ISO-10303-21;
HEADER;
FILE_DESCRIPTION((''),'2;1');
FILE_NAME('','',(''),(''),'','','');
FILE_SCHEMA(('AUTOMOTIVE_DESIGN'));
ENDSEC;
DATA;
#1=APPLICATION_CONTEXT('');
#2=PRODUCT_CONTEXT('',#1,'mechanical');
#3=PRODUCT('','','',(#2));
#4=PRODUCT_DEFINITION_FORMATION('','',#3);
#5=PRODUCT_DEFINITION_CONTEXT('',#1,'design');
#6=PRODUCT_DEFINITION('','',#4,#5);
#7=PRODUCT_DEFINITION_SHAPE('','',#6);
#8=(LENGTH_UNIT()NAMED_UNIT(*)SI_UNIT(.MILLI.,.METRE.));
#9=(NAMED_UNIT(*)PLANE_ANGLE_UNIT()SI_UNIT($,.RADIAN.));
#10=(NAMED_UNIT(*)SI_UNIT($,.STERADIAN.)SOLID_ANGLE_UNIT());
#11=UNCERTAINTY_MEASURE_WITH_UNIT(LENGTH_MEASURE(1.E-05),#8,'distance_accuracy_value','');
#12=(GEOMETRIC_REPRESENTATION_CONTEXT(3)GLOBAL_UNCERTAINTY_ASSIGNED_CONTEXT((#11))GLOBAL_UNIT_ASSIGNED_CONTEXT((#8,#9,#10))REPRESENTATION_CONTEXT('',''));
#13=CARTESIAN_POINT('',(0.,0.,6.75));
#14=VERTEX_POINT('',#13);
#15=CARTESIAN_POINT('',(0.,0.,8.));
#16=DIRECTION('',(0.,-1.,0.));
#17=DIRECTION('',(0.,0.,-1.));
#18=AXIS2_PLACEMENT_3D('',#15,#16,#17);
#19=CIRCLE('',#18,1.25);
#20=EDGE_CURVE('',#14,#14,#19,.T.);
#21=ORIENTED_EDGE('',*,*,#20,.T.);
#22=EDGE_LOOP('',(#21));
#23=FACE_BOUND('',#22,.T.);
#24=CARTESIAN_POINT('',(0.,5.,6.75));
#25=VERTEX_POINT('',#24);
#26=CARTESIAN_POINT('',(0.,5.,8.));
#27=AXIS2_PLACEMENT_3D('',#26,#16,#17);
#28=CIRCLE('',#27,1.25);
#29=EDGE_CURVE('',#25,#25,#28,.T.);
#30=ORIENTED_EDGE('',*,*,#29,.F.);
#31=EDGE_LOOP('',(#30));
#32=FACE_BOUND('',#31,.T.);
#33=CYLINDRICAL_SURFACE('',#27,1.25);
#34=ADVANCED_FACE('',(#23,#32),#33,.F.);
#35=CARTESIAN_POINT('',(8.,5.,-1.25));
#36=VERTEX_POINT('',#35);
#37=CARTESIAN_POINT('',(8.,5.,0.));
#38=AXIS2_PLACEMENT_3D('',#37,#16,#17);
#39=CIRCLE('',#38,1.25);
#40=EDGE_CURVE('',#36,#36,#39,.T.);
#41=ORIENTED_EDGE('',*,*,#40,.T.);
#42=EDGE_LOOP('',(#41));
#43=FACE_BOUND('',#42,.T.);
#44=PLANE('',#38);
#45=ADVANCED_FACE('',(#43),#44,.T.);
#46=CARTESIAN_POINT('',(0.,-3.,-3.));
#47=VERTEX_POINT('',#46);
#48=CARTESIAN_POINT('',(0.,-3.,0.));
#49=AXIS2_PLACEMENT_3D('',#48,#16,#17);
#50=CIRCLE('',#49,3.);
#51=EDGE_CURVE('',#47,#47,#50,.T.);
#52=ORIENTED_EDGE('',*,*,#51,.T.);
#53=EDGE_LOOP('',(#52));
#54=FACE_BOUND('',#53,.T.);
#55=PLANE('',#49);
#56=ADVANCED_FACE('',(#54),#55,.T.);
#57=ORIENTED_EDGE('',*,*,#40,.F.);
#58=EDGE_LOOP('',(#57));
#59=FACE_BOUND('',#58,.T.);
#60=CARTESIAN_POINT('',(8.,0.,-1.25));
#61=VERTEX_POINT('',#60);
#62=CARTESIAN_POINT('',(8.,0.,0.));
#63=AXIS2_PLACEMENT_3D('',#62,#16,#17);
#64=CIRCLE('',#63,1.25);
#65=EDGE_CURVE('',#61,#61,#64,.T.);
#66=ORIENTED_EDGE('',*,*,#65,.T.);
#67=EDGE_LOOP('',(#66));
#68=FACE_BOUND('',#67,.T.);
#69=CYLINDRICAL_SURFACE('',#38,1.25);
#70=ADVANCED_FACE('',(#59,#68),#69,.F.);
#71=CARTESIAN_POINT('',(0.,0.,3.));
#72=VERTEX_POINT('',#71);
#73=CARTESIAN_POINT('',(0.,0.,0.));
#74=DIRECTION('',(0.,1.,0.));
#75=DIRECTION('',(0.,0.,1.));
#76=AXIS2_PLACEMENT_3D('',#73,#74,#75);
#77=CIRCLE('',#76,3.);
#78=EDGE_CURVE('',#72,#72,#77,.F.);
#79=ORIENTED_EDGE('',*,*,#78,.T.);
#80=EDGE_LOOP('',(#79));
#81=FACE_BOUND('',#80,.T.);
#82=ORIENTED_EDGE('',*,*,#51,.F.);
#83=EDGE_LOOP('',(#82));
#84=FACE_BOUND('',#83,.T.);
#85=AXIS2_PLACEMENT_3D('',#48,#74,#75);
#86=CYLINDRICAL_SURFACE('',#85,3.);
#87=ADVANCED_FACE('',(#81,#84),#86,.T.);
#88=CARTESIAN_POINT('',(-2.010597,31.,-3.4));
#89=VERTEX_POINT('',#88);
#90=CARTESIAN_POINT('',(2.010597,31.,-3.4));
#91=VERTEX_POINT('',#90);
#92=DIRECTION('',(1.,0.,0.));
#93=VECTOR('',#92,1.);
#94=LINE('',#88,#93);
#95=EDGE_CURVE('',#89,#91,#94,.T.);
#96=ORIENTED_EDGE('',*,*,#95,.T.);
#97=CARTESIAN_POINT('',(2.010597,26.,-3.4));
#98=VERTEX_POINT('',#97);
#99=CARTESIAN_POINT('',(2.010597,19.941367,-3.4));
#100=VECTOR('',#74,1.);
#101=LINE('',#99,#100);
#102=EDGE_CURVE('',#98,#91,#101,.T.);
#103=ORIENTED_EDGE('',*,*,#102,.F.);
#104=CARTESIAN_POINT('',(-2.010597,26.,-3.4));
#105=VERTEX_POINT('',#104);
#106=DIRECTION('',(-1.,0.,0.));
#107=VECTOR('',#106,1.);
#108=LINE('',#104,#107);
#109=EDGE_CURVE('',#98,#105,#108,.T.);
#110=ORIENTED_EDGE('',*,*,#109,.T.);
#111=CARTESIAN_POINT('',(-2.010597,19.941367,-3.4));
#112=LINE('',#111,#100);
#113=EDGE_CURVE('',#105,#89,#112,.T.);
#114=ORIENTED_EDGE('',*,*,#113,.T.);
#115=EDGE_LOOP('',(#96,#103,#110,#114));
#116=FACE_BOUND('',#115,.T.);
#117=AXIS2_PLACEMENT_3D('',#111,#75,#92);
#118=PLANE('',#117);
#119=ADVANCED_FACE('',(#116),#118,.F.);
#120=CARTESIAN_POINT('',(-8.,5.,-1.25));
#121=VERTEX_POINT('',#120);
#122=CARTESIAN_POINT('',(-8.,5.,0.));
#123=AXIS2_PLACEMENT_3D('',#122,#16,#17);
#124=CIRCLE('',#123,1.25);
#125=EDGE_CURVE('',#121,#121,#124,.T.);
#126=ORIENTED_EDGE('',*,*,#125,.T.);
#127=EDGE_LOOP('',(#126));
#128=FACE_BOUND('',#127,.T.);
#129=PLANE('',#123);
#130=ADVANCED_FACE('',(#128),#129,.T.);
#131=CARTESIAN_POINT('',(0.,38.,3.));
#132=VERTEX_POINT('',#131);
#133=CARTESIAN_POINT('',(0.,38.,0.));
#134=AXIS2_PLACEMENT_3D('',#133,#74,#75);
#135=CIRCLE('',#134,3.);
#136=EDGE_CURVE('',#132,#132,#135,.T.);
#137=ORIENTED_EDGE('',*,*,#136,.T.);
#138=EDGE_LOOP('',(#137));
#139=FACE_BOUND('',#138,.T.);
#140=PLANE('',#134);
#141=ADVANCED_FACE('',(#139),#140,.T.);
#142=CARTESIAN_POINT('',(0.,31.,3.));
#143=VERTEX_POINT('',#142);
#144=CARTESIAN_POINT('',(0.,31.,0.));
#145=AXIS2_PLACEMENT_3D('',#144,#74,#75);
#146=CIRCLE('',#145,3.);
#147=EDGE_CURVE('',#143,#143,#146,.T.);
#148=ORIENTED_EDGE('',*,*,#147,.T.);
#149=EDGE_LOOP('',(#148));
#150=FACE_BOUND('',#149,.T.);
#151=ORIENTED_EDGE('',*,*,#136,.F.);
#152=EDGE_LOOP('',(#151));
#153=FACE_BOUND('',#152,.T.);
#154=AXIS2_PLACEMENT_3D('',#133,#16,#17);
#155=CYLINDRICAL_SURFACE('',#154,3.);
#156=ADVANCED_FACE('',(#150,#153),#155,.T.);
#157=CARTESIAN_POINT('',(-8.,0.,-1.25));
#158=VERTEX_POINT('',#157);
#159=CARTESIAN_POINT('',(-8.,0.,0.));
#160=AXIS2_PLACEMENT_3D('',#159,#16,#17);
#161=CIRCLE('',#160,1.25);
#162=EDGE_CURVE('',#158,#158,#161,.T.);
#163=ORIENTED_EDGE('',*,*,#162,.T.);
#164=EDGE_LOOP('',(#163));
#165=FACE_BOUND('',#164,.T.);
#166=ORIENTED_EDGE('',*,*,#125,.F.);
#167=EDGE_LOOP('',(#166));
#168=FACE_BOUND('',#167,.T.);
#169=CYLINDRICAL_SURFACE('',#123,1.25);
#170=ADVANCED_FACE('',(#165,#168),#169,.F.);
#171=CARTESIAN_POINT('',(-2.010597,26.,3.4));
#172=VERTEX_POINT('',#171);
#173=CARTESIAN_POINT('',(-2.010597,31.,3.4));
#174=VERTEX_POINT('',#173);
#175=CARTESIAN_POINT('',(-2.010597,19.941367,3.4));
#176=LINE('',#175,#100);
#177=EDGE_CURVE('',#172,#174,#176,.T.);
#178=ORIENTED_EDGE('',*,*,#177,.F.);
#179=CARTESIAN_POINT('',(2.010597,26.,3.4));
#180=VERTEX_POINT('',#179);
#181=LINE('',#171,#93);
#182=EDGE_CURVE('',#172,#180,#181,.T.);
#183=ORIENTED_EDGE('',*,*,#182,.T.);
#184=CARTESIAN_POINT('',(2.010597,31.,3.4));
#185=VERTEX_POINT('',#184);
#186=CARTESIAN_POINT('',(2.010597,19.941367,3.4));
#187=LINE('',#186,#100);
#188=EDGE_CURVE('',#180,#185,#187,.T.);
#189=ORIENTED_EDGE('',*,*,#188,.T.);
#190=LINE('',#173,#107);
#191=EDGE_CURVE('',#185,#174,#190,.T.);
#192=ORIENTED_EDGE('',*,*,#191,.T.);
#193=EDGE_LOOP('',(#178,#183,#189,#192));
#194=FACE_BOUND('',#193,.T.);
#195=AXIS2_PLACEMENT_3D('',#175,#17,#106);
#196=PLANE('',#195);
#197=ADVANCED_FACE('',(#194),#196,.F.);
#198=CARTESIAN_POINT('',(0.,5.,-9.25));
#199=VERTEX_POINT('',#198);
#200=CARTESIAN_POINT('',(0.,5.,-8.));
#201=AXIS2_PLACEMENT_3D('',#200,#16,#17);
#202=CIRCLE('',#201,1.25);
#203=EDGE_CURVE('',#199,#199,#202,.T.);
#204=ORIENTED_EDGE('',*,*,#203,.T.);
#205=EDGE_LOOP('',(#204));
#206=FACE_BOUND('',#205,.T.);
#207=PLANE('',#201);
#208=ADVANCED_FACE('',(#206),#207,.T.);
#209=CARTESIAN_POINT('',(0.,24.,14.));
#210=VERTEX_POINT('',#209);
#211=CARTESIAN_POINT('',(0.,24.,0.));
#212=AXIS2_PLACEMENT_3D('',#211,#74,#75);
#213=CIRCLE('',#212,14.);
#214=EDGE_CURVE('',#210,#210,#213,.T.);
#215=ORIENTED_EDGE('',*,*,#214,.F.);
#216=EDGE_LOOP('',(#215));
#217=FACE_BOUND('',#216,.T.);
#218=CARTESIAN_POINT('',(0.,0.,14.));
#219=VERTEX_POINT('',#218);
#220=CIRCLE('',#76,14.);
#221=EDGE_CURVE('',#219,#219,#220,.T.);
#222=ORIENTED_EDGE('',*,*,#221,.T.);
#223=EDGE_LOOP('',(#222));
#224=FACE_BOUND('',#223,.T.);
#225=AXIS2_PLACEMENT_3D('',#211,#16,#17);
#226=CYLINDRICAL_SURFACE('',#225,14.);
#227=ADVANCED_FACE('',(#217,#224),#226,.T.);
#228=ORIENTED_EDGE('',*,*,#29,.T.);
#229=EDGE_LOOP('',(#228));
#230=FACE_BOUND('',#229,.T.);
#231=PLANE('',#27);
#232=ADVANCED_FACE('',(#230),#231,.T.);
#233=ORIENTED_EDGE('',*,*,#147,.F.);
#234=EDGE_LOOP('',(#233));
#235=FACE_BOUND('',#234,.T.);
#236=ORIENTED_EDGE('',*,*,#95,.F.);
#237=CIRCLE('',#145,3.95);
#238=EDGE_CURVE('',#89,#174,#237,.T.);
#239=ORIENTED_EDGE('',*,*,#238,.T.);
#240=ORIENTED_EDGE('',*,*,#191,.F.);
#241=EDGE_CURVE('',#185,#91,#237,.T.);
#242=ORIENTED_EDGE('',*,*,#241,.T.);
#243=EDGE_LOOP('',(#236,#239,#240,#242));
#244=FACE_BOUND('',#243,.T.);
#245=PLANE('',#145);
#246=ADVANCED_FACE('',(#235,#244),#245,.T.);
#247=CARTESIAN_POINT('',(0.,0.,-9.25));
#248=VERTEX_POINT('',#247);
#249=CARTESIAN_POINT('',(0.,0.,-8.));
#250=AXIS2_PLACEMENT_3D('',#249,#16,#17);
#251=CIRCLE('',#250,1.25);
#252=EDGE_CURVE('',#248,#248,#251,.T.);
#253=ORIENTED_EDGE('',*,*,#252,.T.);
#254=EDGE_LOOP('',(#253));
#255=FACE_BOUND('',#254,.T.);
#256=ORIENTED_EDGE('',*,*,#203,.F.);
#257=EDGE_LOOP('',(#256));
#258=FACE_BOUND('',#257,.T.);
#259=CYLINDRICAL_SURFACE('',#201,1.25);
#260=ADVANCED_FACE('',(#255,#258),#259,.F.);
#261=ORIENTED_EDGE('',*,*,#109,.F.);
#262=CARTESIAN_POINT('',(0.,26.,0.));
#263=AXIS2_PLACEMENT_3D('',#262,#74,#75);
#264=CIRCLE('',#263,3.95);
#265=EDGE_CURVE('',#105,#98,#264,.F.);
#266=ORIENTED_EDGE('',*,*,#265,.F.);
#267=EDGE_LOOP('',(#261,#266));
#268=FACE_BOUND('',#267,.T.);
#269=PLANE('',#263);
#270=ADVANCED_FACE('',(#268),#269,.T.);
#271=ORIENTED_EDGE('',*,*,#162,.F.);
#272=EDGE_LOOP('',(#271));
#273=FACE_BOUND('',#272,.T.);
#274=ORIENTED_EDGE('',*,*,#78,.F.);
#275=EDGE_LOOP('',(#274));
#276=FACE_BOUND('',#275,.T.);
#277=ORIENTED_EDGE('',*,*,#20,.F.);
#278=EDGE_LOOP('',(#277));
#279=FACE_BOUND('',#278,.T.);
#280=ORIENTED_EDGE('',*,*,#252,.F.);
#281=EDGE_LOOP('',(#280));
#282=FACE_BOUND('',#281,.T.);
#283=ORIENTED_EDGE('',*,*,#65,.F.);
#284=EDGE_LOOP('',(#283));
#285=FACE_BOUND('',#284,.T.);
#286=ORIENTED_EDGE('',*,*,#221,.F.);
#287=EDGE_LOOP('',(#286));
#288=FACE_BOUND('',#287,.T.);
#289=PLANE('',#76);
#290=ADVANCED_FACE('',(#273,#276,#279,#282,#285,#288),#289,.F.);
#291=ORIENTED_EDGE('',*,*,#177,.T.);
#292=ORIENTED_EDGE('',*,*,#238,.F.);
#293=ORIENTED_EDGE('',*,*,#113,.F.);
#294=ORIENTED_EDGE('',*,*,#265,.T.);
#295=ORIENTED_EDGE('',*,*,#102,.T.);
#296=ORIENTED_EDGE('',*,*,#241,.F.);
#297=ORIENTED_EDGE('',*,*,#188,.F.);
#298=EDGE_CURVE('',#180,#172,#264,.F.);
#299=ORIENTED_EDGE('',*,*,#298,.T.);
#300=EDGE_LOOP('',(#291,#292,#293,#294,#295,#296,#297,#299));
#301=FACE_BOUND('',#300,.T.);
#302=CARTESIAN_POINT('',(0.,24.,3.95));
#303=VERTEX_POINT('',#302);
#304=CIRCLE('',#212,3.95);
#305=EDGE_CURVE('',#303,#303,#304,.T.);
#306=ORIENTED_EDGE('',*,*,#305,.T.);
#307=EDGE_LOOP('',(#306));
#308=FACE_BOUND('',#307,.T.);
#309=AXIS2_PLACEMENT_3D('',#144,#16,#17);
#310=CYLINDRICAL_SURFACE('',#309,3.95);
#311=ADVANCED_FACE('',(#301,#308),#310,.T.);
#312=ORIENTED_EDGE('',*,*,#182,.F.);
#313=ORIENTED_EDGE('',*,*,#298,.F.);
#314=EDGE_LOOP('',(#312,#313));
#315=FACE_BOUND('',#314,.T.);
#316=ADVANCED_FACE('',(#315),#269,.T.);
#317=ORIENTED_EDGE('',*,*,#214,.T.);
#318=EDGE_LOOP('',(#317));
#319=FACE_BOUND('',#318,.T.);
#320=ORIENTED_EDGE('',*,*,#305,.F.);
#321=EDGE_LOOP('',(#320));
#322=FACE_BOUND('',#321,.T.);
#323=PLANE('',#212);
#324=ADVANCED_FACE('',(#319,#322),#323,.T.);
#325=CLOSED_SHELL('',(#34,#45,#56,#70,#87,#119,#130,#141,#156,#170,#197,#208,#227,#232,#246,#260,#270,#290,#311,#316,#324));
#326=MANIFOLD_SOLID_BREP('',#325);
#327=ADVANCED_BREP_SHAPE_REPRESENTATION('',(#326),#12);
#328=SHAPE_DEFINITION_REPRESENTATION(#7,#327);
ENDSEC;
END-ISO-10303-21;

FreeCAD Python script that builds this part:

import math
import FreeCAD as App
import Part
import Sketcher
Q = App.Units.Quantity

doc = App.newDocument("Part")
body = doc.addObject("PartDesign::Body", "Body")

sketch1 = body.newObject("Sketcher::SketchObject", "Sketch")
sketch1.AttachmentSupport = (doc.getObject("XZ_Plane"), [""])
sketch1.MapMode = "FlatFace"
sketch1.addGeometry(Part.Circle(App.Vector(0, 0, 0), App.Vector(0, 0, 1), 14), False)
sketch1.addConstraint(Sketcher.Constraint("Coincident", 0, 3, -1, 1))
sketch1.addConstraint(Sketcher.Constraint("Diameter", 0, Q("28 mm")))
pad1 = body.newObject("PartDesign::Pad", "Pad")
pad1.Profile = sketch1
pad1.Length = 24
pad1.Reversed = True

sketch2 = body.newObject("Sketcher::SketchObject", "Sketch001")
sketch2.AttachmentSupport = (doc.getObject("XZ_Plane"), [""])
sketch2.MapMode = "FlatFace"
sketch2.AttachmentOffset = App.Placement(App.Vector(0, 0, -24), App.Rotation())
sketch2.addGeometry(Part.Circle(App.Vector(0, 0, 0), App.Vector(0, 0, 1), 4), False)
sketch2.addConstraint(Sketcher.Constraint("Coincident", 0, 3, -1, 1))
sketch2.addConstraint(Sketcher.Constraint("Diameter", 0, Q("7.9 mm")))
pad2 = body.newObject("PartDesign::Pad", "Pad001")
pad2.Profile = sketch2
pad2.Length = 7
pad2.Reversed = True

sketch3 = body.newObject("Sketcher::SketchObject", "Sketch002")
sketch3.AttachmentSupport = (doc.getObject("XZ_Plane"), [""])
sketch3.MapMode = "FlatFace"
sketch3.AttachmentOffset = App.Placement(App.Vector(0, 0, -31), App.Rotation())
sketch3.addGeometry(Part.Circle(App.Vector(0, 0, 0), App.Vector(0, 0, 1), 3), False)
sketch3.addConstraint(Sketcher.Constraint("Coincident", 0, 3, -1, 1))
sketch3.addConstraint(Sketcher.Constraint("Diameter", 0, Q("6 mm")))
pad3 = body.newObject("PartDesign::Pad", "Pad002")
pad3.Profile = sketch3
pad3.Length = 7
pad3.Reversed = True

sketch4 = body.newObject("Sketcher::SketchObject", "Sketch003")
sketch4.AttachmentSupport = (doc.getObject("XZ_Plane"), [""])
sketch4.MapMode = "FlatFace"
sketch4.addGeometry(Part.Circle(App.Vector(8, 0, 0), App.Vector(0, 0, 1), 1.2), False)
sketch4.addGeometry(Part.Circle(App.Vector(0, -8, 0), App.Vector(0, 0, 1), 1.2), False)
sketch4.addGeometry(Part.Circle(App.Vector(-8, 0, 0), App.Vector(0, 0, 1), 1.2), False)
sketch4.addGeometry(Part.Circle(App.Vector(0, 8, 0), App.Vector(0, 0, 1), 1.2), False)
sketch4.addConstraint(Sketcher.Constraint("Equal", 0, 1))
sketch4.addConstraint(Sketcher.Constraint("Equal", 1, 2))
sketch4.addConstraint(Sketcher.Constraint("Equal", 2, 3))
sketch4.addConstraint(Sketcher.Constraint("Symmetric", 0, 3, 2, 3, -1, 1))
sketch4.addConstraint(Sketcher.Constraint("Symmetric", 1, 3, 3, 3, -1, 1))
sketch4.addConstraint(Sketcher.Constraint("PointOnObject", 0, 3, -1))
sketch4.addConstraint(Sketcher.Constraint("PointOnObject", 1, 3, -2))
sketch4.addConstraint(Sketcher.Constraint("Diameter", 0, Q("2.5 mm")))
sketch4.addConstraint(Sketcher.Constraint("DistanceX", -1, 1, 0, 3, Q("8 mm")))
sketch4.addConstraint(Sketcher.Constraint("DistanceY", 1, 3, -1, 1, Q("8 mm")))
pocket1 = body.newObject("PartDesign::Pocket", "Pocket")
pocket1.Profile = sketch4
pocket1.Length = 5

sketch5 = body.newObject("Sketcher::SketchObject", "Sketch004")
sketch5.AttachmentSupport = (doc.getObject("XZ_Plane"), [""])
sketch5.MapMode = "FlatFace"
sketch5.AttachmentOffset = App.Placement(App.Vector(0, 0, 3), App.Rotation())
sketch5.addGeometry(Part.Circle(App.Vector(0, 0, 0), App.Vector(0, 0, 1), 3), False)
sketch5.addConstraint(Sketcher.Constraint("Coincident", 0, 3, -1, 1))
sketch5.addConstraint(Sketcher.Constraint("Diameter", 0, Q("6 mm")))
pad4 = body.newObject("PartDesign::Pad", "Pad003")
pad4.Profile = sketch5
pad4.Length = 3
pad4.Reversed = True

sketch6 = body.newObject("Sketcher::SketchObject", "Sketch005")
sketch6.AttachmentSupport = (doc.getObject("XZ_Plane"), [""])
sketch6.MapMode = "FlatFace"
sketch6.AttachmentOffset = App.Placement(App.Vector(0, 0, -26), App.Rotation())
sketch6.addGeometry(Part.LineSegment(App.Vector(-2, -3.4, 0), App.Vector(2, -3.4, 0)), False)
sketch6.addGeometry(Part.ArcOfCircle(Part.Circle(App.Vector(0, 0, 0), App.Vector(0, 0, 1), 3.9), math.radians(-121), math.radians(-59)), False)
sketch6.addGeometry(Part.LineSegment(App.Vector(2, 3.4, 0), App.Vector(-2, 3.4, 0)), False)
sketch6.addGeometry(Part.ArcOfCircle(Part.Circle(App.Vector(0, 0, 0), App.Vector(0, 0, 1), 3.9), math.radians(59), math.radians(121)), False)
sketch6.addConstraint(Sketcher.Constraint("Coincident", 0, 1, 1, 1))
sketch6.addConstraint(Sketcher.Constraint("Coincident", 1, 2, 0, 2))
sketch6.addConstraint(Sketcher.Constraint("Coincident", 2, 1, 3, 1))
sketch6.addConstraint(Sketcher.Constraint("Coincident", 3, 2, 2, 2))
sketch6.addConstraint(Sketcher.Constraint("Horizontal", 0))
sketch6.addConstraint(Sketcher.Constraint("Horizontal", 2))
sketch6.addConstraint(Sketcher.Constraint("Coincident", 1, 3, -1, 1))
sketch6.addConstraint(Sketcher.Constraint("Coincident", 3, 3, -1, 1))
sketch6.addConstraint(Sketcher.Constraint("Equal", 1, 3))
sketch6.addConstraint(Sketcher.Constraint("Vertical", 1, 2, 2, 1))
sketch6.addConstraint(Sketcher.Constraint("Radius", 1, Q("3.95 mm")))
sketch6.addConstraint(Sketcher.Constraint("DistanceY", 0, 1, -1, 1, Q("3.4 mm")))
pocket2 = body.newObject("PartDesign::Pocket", "Pocket001")
pocket2.Profile = sketch6
pocket2.Length = 5

doc.recompute()
